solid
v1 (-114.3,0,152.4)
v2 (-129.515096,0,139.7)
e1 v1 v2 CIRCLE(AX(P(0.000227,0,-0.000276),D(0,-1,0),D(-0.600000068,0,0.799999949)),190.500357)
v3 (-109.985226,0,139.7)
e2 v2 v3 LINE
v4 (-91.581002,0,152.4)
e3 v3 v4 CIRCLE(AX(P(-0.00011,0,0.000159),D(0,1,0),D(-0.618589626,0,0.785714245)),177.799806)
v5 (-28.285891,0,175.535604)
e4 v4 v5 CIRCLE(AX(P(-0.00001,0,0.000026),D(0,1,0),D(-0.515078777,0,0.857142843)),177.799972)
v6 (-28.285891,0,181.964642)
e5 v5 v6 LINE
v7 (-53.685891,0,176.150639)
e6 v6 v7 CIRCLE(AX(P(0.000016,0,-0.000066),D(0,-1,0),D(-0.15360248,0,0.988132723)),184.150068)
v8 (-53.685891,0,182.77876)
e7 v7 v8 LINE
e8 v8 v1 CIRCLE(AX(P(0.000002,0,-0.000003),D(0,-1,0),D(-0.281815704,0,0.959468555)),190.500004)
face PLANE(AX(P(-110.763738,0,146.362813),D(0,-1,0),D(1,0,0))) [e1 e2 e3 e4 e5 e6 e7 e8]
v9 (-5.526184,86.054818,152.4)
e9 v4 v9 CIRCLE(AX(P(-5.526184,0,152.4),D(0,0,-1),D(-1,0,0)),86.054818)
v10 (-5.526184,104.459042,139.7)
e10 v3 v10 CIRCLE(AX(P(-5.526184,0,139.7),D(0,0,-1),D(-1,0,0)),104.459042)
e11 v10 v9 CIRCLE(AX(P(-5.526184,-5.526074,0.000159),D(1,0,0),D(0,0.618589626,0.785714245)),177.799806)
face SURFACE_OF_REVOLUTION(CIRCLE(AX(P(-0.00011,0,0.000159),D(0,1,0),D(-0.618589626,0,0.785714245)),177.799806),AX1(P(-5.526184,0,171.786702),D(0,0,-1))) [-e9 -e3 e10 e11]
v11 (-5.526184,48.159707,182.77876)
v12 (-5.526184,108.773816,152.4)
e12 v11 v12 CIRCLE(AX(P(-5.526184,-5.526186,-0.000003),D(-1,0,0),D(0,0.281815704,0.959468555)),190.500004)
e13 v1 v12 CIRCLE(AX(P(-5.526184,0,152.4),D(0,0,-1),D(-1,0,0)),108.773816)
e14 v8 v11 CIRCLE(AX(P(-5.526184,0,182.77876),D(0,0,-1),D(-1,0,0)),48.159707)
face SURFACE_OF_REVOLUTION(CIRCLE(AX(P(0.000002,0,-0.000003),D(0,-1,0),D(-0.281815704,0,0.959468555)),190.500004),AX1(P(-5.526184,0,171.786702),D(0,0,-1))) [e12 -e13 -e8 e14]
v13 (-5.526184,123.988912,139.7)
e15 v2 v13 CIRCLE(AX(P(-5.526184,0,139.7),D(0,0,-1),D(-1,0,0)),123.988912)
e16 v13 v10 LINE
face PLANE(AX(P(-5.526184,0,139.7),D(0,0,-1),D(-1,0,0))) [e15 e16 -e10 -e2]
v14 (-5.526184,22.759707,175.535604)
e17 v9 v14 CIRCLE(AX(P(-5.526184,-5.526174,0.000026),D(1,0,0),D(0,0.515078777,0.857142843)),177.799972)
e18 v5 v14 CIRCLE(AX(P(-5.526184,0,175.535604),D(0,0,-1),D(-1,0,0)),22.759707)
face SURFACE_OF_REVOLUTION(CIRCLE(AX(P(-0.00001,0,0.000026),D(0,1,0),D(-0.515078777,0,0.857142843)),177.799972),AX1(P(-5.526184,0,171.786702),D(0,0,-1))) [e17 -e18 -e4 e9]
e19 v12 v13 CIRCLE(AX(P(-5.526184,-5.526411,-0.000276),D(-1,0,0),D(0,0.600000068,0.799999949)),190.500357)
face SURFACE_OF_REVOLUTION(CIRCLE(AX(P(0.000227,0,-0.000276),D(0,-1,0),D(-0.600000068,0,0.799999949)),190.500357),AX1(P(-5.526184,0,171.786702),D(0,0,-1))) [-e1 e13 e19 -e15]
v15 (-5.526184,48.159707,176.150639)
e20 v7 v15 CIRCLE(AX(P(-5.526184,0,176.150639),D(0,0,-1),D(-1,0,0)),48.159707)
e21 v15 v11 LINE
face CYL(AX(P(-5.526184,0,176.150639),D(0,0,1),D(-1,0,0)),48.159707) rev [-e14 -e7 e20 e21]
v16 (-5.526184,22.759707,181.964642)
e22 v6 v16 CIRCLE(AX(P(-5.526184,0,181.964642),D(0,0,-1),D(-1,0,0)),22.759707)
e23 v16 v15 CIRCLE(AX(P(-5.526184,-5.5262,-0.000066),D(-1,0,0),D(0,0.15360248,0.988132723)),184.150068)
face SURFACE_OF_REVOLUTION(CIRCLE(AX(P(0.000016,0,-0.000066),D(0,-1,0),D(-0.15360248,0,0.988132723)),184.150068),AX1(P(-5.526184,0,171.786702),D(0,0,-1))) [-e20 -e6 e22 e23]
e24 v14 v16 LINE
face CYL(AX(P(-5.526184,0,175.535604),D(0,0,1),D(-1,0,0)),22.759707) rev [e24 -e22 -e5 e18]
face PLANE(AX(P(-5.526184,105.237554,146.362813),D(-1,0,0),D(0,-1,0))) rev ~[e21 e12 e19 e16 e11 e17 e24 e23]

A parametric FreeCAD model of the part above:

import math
import FreeCAD as App
import Part
import Sketcher

V = App.Vector
Q = App.Units.Quantity

doc = App.newDocument("Part")
body = doc.addObject("PartDesign::Body", "Body")

# Sketch on XZ plane
sketch1 = body.newObject("Sketcher::SketchObject", "Sketch")
sketch1.AttachmentSupport = (doc.getObject("XZ_Plane"), [""])
sketch1.MapMode = "FlatFace"
sketch1.addGeometry(Part.ArcOfCircle(Part.Circle(V(-0.00011, 0.000159, 0), V(0, 0, 1), 177.799806), math.radians(121.002715), math.radians(128.213214)), False)
sketch1.addGeometry(Part.ArcOfCircle(Part.Circle(V(-0.00001, 0.000026, 0), V(0, 0, 1), 177.799972), math.radians(99.153977), math.radians(121.002721)), False)
sketch1.addGeometry(Part.LineSegment(V(-28.285891, 175.535604, 0), V(-28.285891, 181.964642, 0)), False)
sketch1.addGeometry(Part.ArcOfCircle(Part.Circle(V(0.000016, -0.000066, 0), V(0, 0, 1), 184.150068), math.radians(98.835754), math.radians(106.949785)), False)
sketch1.addGeometry(Part.LineSegment(V(-53.685891, 176.150639, 0), V(-53.685891, 182.77876, 0)), False)
sketch1.addGeometry(Part.ArcOfCircle(Part.Circle(V(0.000002, -0.000003, 0), V(0, 0, 1), 190.500004), math.radians(106.368602), math.radians(126.869897)), False)
sketch1.addGeometry(Part.ArcOfCircle(Part.Circle(V(0.000227, -0.000276, 0), V(0, 0, 1), 190.500357), math.radians(126.869903), math.radians(132.833422)), False)
sketch1.addGeometry(Part.LineSegment(V(-129.515096, 139.7, 0), V(-109.985226, 139.7, 0)), False)
sketch1.addGeometry(Part.LineSegment(V(-5.526184, 182.77876, 0), V(-5.526184, -0.000276, 0)), True)  # axis
sketch1.addConstraint(Sketcher.Constraint("Coincident", 0, 1, 1, 2))
sketch1.addConstraint(Sketcher.Constraint("Coincident", 1, 1, 2, 1))
sketch1.addConstraint(Sketcher.Constraint("Coincident", 2, 2, 3, 1))
sketch1.addConstraint(Sketcher.Constraint("Coincident", 3, 2, 4, 1))
sketch1.addConstraint(Sketcher.Constraint("Coincident", 4, 2, 5, 1))
sketch1.addConstraint(Sketcher.Constraint("Coincident", 5, 2, 6, 1))
sketch1.addConstraint(Sketcher.Constraint("Coincident", 6, 2, 7, 1))
sketch1.addConstraint(Sketcher.Constraint("Coincident", 7, 2, 0, 2))
sketch1.addConstraint(Sketcher.Constraint("Vertical", 2))
sketch1.addConstraint(Sketcher.Constraint("Vertical", 4))
sketch1.addConstraint(Sketcher.Constraint("Horizontal", 7))
sketch1.addConstraint(Sketcher.Constraint("Vertical", 8))
sketch1.addConstraint(Sketcher.Constraint("Coincident", 5, 3, -1, 1))
sketch1.addConstraint(Sketcher.Constraint("DistanceY", -1, 1, 0, 1, Q("152.4 mm")))
sketch1.addConstraint(Sketcher.Constraint("DistanceX", 5, 2, -1, 1, Q("114.3 mm")))
sketch1.addConstraint(Sketcher.Constraint("DistanceY", -1, 1, 5, 2, Q("152.4 mm")))
sketch1.addConstraint(Sketcher.Constraint("DistanceY", -1, 1, 6, 2, Q("139.7 mm")))
sketch1.addConstraint(Sketcher.Constraint("DistanceX", 3, 2, 1, 1, Q("25.4 mm")))
sketch1.addConstraint(Sketcher.Constraint("DistanceX", 0, 1, -1, 1, Q("91.581002 mm")))
sketch1.addConstraint(Sketcher.Constraint("Radius", 0, Q("177.799806 mm")))
sketch1.addConstraint(Sketcher.Constraint("Radius", 1, Q("177.799972 mm")))
sketch1.addConstraint(Sketcher.Constraint("Radius", 3, Q("184.150068 mm")))
sketch1.addConstraint(Sketcher.Constraint("Radius", 6, Q("190.500357 mm")))
sketch1.addConstraint(Sketcher.Constraint("DistanceX", 7, 1, 7, 2, Q("19.52987 mm")))
sketch1.addConstraint(Sketcher.Constraint("DistanceY", 4, 1, 4, 2, Q("6.628121 mm")))
sketch1.addConstraint(Sketcher.Constraint("DistanceX", 0, 3, 1, 3, Q("0.000101 mm")))
sketch1.addConstraint(Sketcher.Constraint("DistanceY", 6, 3, 1, 3, Q("0.000302 mm")))
sketch1.addConstraint(Sketcher.Constraint("DistanceY", 0, 3, 4, 2, Q("182.778601 mm")))
sketch1.addConstraint(Sketcher.Constraint("DistanceY", 8, 2, 1, 3, Q("0.000302 mm")))
sketch1.addConstraint(Sketcher.Constraint("DistanceX", 8, 2, 3, 3, Q("5.5262 mm")))
sketch1.addConstraint(Sketcher.Constraint("DistanceY", 2, 1, 2, 2, Q("6.429038 mm")))
sketch1.addConstraint(Sketcher.Constraint("DistanceY", 8, 2, 8, 1, Q("182.779036 mm")))
revolution = body.newObject("PartDesign::Revolution", "Revolution")
revolution.Profile = sketch1
revolution.ReferenceAxis = (sketch1, ["Axis0"])
revolution.Angle = 90

doc.recompute()
